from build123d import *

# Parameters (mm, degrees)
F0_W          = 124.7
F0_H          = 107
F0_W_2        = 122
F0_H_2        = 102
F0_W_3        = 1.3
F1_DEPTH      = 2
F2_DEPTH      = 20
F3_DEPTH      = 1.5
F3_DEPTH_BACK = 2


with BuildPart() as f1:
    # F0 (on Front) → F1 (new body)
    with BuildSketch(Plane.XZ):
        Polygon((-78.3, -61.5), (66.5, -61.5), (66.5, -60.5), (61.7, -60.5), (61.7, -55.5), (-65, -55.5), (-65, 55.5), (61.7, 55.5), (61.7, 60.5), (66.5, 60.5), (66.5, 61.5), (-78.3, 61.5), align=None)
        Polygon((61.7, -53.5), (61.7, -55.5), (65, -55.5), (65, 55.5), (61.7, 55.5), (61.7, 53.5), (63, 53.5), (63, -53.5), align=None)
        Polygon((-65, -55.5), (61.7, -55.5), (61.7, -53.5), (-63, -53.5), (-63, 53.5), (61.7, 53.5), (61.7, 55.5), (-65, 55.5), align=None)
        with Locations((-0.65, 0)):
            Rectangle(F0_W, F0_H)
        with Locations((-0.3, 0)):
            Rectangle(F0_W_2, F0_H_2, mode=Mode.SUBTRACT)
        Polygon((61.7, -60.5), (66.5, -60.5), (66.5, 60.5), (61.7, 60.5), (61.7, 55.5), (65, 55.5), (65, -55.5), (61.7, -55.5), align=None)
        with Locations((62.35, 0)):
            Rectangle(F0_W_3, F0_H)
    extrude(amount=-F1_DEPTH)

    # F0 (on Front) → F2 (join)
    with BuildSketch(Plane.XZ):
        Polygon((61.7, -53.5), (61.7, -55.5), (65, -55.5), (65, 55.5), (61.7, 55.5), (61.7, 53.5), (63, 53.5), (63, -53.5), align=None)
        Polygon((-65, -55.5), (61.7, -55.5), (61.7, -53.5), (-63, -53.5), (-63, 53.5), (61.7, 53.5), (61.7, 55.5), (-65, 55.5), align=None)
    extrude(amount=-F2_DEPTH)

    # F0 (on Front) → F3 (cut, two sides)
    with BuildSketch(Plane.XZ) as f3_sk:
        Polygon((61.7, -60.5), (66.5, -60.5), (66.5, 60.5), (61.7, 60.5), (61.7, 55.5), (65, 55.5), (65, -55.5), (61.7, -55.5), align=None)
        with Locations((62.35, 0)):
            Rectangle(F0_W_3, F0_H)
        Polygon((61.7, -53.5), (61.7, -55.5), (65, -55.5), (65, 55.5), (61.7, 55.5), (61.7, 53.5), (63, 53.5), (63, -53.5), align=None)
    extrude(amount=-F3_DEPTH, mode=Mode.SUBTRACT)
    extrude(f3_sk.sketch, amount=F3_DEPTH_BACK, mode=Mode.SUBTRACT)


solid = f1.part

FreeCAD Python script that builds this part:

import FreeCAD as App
import Part
import Sketcher
from FreeCAD import Vector


def add_polygon(sketch, points):
    """Adds a closed chain of lines whose ends are joined by coincident constraints."""
    first, n = sketch.GeometryCount, len(points)
    for a, b in zip(points, points[1:] + points[:1]):
        sketch.addGeometry(Part.LineSegment(App.Vector(*a, 0), App.Vector(*b, 0)), False)
    for i in range(n):
        sketch.addConstraint(Sketcher.Constraint("Coincident", first + i, 2, first + (i + 1) % n, 1))

doc = App.newDocument("Part")
params = doc.addObject("Spreadsheet::Sheet", "Params")
for row, (alias, value) in enumerate([
    ("sketch1_width", "122 mm"),
    ("sketch1_height", "123 mm"),
    ("sketch1_height2", "102 mm"),
    ("sketch1_width2", "144.8 mm"),
    ("pad1_length", "2 mm"),
    ("sketch2_width", "130 mm"),
    ("sketch2_width2", "126 mm"),
    ("sketch2_height", "111 mm"),
    ("sketch2_height2", "107 mm"),
    ("pad2_length", "20 mm"),
    ("sketch3_height", "121 mm"),
    ("sketch3_width", "4.8 mm"),
    ("pocket1_length", "1.5 mm"),
    ("pocket1_length2", "2 mm"),
], start=1):
    params.set(f"A{row}", alias)
    params.set(f"B{row}", "=" + value)
    params.setAlias(f"B{row}", alias)

body = doc.addObject("PartDesign::Body", "Body")

sketch1 = body.newObject("Sketcher::SketchObject", "Sketch")
sketch1.AttachmentSupport = (doc.getObject("XZ_Plane"), [""])
sketch1.MapMode = "FlatFace"
add_polygon(sketch1, [(-78, -62), (66, -62), (66, 62), (-78, 62)])
add_polygon(sketch1, [(61, -51), (-61, -51), (-61, 51), (61, 51)])
sketch1.addConstraint(Sketcher.Constraint("Horizontal", 0))
sketch1.addConstraint(Sketcher.Constraint("Vertical", 1))
sketch1.addConstraint(Sketcher.Constraint("Horizontal", 2))
sketch1.addConstraint(Sketcher.Constraint("Vertical", 3))
sketch1.addConstraint(Sketcher.Constraint("Horizontal", 4))
sketch1.addConstraint(Sketcher.Constraint("Vertical", 5))
sketch1.addConstraint(Sketcher.Constraint("Horizontal", 6))
sketch1.addConstraint(Sketcher.Constraint("Vertical", 7))
sketch1.addConstraint(Sketcher.Constraint("DistanceX", 4, 2, 4, 1, 122.0))
sketch1.addConstraint(Sketcher.Constraint("DistanceY", 1, 1, 1, 2, 123.0))
sketch1.addConstraint(Sketcher.Constraint("DistanceY", 5, 1, 5, 2, 102.0))
sketch1.addConstraint(Sketcher.Constraint("DistanceX", 0, 1, 0, 2, 144.8))
sketch1.addConstraint(Sketcher.Constraint("DistanceY", 4, 2, -1, 1, 51.0))
sketch1.addConstraint(Sketcher.Constraint("DistanceX", 3, 2, 4, 2, 17.0))
sketch1.addConstraint(Sketcher.Constraint("DistanceX", -1, 1, 0, 2, 66.5))
sketch1.addConstraint(Sketcher.Constraint("DistanceY", 0, 2, -1, 1, 61.5))
sketch1.setExpression("Constraints[16]", "Params.sketch1_width")
sketch1.setExpression("Constraints[17]", "Params.sketch1_height")
sketch1.setExpression("Constraints[18]", "Params.sketch1_height2")
sketch1.setExpression("Constraints[19]", "Params.sketch1_width2")
pad1 = body.newObject("PartDesign::Pad", "Pad")
pad1.Profile = sketch1
pad1.setExpression("Length", "Params.pad1_length")
pad1.Reversed = True

sketch2 = body.newObject("Sketcher::SketchObject", "Sketch001")
sketch2.AttachmentSupport = (doc.getObject("XZ_Plane"), [""])
sketch2.MapMode = "FlatFace"
add_polygon(sketch2, [(65, -56), (65, 56), (-65, 56), (-65, -56)])
add_polygon(sketch2, [(63, 54), (63, -54), (-63, -54), (-63, 54)])
sketch2.addConstraint(Sketcher.Constraint("Vertical", 0))
sketch2.addConstraint(Sketcher.Constraint("Horizontal", 1))
sketch2.addConstraint(Sketcher.Constraint("Vertical", 2))
sketch2.addConstraint(Sketcher.Constraint("Horizontal", 3))
sketch2.addConstraint(Sketcher.Constraint("Vertical", 4))
sketch2.addConstraint(Sketcher.Constraint("Horizontal", 5))
sketch2.addConstraint(Sketcher.Constraint("Vertical", 6))
sketch2.addConstraint(Sketcher.Constraint("Horizontal", 7))
sketch2.addConstraint(Sketcher.Constraint("Symmetric", 0, 2, 2, 2, -1, 1))
sketch2.addConstraint(Sketcher.Constraint("Symmetric", 4, 2, 6, 2, -1, 1))
sketch2.addConstraint(Sketcher.Constraint("DistanceX", 1, 2, 1, 1, 130.0))
sketch2.addConstraint(Sketcher.Constraint("DistanceX", 5, 2, 5, 1, 126.0))
sketch2.addConstraint(Sketcher.Constraint("DistanceY", 0, 1, 0, 2, 111.0))
sketch2.addConstraint(Sketcher.Constraint("DistanceY", 4, 2, 4, 1, 107.0))
sketch2.setExpression("Constraints[18]", "Params.sketch2_width")
sketch2.setExpression("Constraints[19]", "Params.sketch2_width2")
sketch2.setExpression("Constraints[20]", "Params.sketch2_height")
sketch2.setExpression("Constraints[21]", "Params.sketch2_height2")
pad2 = body.newObject("PartDesign::Pad", "Pad001")
pad2.Profile = sketch2
pad2.setExpression("Length", "Params.pad2_length")
pad2.Reversed = True

sketch3 = body.newObject("Sketcher::SketchObject", "Sketch002")
sketch3.AttachmentSupport = (doc.getObject("XZ_Plane"), [""])
sketch3.MapMode = "FlatFace"
add_polygon(sketch3, [(61.7, -60.5), (66.5, -60.5), (66.5, 60.5), (61.7, 60.5)])
sketch3.addConstraint(Sketcher.Constraint("Horizontal", 0))
sketch3.addConstraint(Sketcher.Constraint("Vertical", 1))
sketch3.addConstraint(Sketcher.Constraint("Horizontal", 2))
sketch3.addConstraint(Sketcher.Constraint("Vertical", 3))
sketch3.addConstraint(Sketcher.Constraint("DistanceY", 1, 1, 1, 2, 121.0))
sketch3.addConstraint(Sketcher.Constraint("DistanceX", 0, 1, 0, 2, 4.8))
sketch3.addConstraint(Sketcher.Constraint("DistanceX", -1, 1, 0, 2, 66.5))
sketch3.addConstraint(Sketcher.Constraint("DistanceY", 0, 2, -1, 1, 60.5))
sketch3.setExpression("Constraints[8]", "Params.sketch3_height")
sketch3.setExpression("Constraints[9]", "Params.sketch3_width")
pocket1 = body.newObject("PartDesign::Pocket", "Pocket")
pocket1.Profile = sketch3
pocket1.Type = "TwoLengths"
pocket1.setExpression("Length", "Params.pocket1_length")
pocket1.setExpression("Length2", "Params.pocket1_length2")

doc.recompute()
